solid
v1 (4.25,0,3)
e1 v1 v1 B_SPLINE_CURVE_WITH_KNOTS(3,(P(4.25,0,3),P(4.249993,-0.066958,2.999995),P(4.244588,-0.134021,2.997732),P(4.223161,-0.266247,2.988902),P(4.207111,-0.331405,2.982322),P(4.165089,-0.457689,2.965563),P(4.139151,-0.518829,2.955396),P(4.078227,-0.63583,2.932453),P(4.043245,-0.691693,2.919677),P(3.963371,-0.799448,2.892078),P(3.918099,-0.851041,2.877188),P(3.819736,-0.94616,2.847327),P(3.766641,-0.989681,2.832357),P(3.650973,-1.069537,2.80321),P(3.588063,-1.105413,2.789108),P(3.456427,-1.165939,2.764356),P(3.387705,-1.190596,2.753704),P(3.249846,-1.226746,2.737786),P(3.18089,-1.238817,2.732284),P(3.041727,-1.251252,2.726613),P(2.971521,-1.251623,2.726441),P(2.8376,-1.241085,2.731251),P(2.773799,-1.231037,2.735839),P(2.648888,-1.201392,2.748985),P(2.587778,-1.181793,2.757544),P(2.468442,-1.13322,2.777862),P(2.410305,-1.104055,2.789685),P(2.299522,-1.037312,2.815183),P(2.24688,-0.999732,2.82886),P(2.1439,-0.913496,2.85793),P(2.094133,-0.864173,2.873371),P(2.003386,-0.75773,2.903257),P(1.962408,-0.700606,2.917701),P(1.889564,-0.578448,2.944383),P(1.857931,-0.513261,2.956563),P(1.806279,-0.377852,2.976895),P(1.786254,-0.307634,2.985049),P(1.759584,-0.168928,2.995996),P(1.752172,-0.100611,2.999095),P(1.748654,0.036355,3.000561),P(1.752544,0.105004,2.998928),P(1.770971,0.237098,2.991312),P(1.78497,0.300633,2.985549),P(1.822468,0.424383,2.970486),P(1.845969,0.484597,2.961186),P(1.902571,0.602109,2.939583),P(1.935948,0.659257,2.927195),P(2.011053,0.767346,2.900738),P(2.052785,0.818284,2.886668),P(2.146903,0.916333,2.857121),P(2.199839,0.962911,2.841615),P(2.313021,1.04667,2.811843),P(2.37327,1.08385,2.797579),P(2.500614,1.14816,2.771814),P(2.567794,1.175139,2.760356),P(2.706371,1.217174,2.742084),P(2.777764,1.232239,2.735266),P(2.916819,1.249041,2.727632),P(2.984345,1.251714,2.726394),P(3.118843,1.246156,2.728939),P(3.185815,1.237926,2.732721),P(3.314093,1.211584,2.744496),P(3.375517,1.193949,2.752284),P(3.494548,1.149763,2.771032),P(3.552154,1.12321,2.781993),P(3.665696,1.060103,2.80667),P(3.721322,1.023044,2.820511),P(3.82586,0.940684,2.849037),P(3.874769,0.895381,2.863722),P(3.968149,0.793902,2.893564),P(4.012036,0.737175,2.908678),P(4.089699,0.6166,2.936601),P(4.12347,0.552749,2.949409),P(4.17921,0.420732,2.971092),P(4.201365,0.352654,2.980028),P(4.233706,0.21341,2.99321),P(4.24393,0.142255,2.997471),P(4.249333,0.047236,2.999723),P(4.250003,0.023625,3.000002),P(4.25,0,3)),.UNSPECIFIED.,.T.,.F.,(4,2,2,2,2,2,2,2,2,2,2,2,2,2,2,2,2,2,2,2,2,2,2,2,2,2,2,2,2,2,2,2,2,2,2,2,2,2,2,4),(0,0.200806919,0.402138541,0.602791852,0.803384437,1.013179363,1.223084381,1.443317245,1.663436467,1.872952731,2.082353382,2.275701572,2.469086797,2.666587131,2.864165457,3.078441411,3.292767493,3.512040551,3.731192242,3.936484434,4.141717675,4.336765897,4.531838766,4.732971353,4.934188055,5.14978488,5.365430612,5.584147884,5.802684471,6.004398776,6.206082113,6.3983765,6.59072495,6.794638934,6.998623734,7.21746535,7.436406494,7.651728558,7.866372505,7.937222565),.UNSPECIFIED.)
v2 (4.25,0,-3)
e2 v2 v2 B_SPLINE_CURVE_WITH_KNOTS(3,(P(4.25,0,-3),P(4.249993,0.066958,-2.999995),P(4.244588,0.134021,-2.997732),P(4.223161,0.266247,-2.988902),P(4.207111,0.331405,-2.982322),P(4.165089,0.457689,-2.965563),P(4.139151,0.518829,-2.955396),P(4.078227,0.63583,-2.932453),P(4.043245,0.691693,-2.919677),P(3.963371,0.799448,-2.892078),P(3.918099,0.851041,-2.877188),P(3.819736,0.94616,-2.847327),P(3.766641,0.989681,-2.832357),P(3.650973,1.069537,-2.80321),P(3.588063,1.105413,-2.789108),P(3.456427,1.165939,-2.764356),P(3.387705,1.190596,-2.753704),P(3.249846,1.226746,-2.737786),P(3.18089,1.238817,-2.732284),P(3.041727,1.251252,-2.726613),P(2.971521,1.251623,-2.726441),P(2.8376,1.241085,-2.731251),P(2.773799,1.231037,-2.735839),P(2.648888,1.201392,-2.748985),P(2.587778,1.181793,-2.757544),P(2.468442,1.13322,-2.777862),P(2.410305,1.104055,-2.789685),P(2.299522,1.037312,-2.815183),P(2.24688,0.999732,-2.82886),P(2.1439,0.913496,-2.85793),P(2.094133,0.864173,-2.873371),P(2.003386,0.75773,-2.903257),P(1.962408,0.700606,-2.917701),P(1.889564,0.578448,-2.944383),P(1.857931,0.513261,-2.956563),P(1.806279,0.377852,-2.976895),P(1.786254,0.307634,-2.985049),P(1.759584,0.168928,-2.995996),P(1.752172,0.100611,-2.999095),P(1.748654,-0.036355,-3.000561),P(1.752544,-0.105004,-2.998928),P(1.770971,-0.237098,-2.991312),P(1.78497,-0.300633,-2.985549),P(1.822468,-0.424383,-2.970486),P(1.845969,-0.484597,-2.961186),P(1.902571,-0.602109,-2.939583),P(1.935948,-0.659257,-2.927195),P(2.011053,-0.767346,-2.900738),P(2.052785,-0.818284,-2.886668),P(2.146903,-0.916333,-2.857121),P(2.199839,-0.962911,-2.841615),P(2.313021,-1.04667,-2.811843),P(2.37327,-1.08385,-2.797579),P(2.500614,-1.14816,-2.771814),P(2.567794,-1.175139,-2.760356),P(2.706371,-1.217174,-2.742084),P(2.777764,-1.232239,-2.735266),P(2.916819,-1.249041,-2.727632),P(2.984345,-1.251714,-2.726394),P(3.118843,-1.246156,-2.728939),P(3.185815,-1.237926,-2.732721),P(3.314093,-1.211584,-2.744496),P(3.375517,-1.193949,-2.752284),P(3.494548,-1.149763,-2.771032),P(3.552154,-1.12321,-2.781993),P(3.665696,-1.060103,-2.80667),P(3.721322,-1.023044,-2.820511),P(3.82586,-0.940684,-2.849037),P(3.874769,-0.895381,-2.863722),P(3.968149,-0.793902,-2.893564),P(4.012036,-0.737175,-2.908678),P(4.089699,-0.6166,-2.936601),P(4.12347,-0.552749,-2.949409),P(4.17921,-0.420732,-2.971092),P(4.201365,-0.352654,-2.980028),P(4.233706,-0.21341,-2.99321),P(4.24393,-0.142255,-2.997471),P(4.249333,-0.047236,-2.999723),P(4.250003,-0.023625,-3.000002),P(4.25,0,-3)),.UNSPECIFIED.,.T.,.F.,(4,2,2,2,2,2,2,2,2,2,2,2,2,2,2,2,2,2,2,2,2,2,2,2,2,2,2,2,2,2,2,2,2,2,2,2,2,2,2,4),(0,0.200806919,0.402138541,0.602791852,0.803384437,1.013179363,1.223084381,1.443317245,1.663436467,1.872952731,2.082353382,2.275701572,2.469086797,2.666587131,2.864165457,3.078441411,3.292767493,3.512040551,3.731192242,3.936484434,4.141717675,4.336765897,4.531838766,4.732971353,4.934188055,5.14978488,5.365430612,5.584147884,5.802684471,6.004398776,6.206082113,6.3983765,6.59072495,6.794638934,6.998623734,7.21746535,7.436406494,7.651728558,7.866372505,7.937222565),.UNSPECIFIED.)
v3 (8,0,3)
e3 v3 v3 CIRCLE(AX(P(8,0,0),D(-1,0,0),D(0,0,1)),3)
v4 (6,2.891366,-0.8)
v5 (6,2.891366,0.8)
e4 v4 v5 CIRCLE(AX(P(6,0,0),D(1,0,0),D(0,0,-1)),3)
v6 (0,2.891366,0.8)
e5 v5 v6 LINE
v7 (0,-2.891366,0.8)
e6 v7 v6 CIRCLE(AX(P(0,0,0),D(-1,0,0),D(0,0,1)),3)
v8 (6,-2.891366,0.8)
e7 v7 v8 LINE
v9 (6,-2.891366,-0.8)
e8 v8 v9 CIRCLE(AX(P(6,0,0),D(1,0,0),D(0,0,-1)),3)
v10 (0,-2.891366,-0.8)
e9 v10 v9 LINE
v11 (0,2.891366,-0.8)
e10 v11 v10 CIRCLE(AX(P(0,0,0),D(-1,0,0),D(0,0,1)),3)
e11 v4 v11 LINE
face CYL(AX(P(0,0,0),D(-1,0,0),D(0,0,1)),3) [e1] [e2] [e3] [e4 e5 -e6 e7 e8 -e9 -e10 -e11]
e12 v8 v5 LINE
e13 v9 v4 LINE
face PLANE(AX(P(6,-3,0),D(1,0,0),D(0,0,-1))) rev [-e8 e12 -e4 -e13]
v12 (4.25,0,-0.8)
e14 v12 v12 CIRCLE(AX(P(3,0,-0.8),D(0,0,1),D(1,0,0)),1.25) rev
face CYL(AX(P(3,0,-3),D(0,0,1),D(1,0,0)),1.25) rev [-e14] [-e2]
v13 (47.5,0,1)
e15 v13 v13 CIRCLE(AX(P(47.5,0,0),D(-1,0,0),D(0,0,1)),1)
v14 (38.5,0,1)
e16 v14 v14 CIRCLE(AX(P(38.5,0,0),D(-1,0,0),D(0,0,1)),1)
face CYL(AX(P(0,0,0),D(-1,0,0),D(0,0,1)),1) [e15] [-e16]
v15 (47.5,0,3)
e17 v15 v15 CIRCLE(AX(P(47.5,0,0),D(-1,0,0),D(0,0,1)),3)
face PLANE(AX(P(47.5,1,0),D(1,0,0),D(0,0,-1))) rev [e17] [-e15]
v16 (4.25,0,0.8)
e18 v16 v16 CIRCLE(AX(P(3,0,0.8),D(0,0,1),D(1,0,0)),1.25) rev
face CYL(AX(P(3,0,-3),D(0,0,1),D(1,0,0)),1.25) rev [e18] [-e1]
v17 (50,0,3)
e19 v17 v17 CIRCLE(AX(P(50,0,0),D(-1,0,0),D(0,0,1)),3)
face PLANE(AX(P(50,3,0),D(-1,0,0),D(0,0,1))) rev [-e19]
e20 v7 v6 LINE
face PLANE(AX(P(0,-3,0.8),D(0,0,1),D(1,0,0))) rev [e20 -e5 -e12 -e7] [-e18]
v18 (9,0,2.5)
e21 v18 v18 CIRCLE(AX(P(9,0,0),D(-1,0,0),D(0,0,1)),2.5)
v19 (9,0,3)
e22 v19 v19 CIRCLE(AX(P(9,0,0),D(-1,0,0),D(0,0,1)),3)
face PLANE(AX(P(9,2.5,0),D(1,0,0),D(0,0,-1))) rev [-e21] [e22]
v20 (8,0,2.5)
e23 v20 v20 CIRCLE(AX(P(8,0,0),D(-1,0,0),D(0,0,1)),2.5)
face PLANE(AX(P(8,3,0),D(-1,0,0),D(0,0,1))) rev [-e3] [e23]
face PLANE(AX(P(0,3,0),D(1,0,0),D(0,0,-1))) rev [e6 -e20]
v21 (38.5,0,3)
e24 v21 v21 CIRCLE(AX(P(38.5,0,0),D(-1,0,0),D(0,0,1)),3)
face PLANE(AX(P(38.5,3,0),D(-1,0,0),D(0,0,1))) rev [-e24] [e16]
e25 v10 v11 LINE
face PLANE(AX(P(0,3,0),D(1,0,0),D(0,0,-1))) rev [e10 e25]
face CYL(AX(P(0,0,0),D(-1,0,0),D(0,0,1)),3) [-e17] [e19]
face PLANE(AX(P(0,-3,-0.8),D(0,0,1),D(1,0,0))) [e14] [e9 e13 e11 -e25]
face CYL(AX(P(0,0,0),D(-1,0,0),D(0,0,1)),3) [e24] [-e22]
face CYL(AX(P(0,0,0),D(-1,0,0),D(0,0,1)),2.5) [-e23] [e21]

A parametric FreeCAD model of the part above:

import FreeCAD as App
import Part
import Sketcher

V = App.Vector
Q = App.Units.Quantity

doc = App.newDocument("Part")
body = doc.addObject("PartDesign::Body", "Body")

# Sketch on XY plane
sketch1 = body.newObject("Sketcher::SketchObject", "Sketch")
sketch1.AttachmentSupport = (doc.getObject("XY_Plane"), [""])
sketch1.MapMode = "FlatFace"
sketch1.addGeometry(Part.LineSegment(V(38.5, 1, 0), V(38.5, 3, 0)), False)
sketch1.addGeometry(Part.LineSegment(V(38.5, 3, 0), V(9, 3, 0)), False)
sketch1.addGeometry(Part.LineSegment(V(9, 3, 0), V(9, 2.5, 0)), False)
sketch1.addGeometry(Part.LineSegment(V(9, 2.5, 0), V(8, 2.5, 0)), False)
sketch1.addGeometry(Part.LineSegment(V(8, 2.5, 0), V(8, 3, 0)), False)
sketch1.addGeometry(Part.LineSegment(V(8, 3, 0), V(0, 3, 0)), False)
sketch1.addGeometry(Part.LineSegment(V(0, 3, 0), V(0, 0, 0)), False)
sketch1.addGeometry(Part.LineSegment(V(0, 0, 0), V(50, 0, 0)), False)
sketch1.addGeometry(Part.LineSegment(V(50, 0, 0), V(50, 3, 0)), False)
sketch1.addGeometry(Part.LineSegment(V(50, 3, 0), V(47.5, 3, 0)), False)
sketch1.addGeometry(Part.LineSegment(V(47.5, 3, 0), V(47.5, 1, 0)), False)
sketch1.addGeometry(Part.LineSegment(V(47.5, 1, 0), V(38.5, 1, 0)), False)
sketch1.addConstraint(Sketcher.Constraint("Coincident", 0, 2, 1, 1))
sketch1.addConstraint(Sketcher.Constraint("Coincident", 1, 2, 2, 1))
sketch1.addConstraint(Sketcher.Constraint("Coincident", 2, 2, 3, 1))
sketch1.addConstraint(Sketcher.Constraint("Coincident", 3, 2, 4, 1))
sketch1.addConstraint(Sketcher.Constraint("Coincident", 4, 2, 5, 1))
sketch1.addConstraint(Sketcher.Constraint("Coincident", 5, 2, 6, 1))
sketch1.addConstraint(Sketcher.Constraint("Coincident", 6, 2, 7, 1))
sketch1.addConstraint(Sketcher.Constraint("Coincident", 7, 2, 8, 1))
sketch1.addConstraint(Sketcher.Constraint("Coincident", 8, 2, 9, 1))
sketch1.addConstraint(Sketcher.Constraint("Coincident", 9, 2, 10, 1))
sketch1.addConstraint(Sketcher.Constraint("Coincident", 10, 2, 11, 1))
sketch1.addConstraint(Sketcher.Constraint("Coincident", 11, 2, 0, 1))
sketch1.addConstraint(Sketcher.Constraint("Vertical", 0))
sketch1.addConstraint(Sketcher.Constraint("Horizontal", 1))
sketch1.addConstraint(Sketcher.Constraint("Vertical", 2))
sketch1.addConstraint(Sketcher.Constraint("Horizontal", 3))
sketch1.addConstraint(Sketcher.Constraint("Vertical", 4))
sketch1.addConstraint(Sketcher.Constraint("Horizontal", 5))
sketch1.addConstraint(Sketcher.Constraint("Vertical", 6))
sketch1.addConstraint(Sketcher.Constraint("Horizontal", 7))
sketch1.addConstraint(Sketcher.Constraint("Vertical", 8))
sketch1.addConstraint(Sketcher.Constraint("Horizontal", 9))
sketch1.addConstraint(Sketcher.Constraint("Vertical", 10))
sketch1.addConstraint(Sketcher.Constraint("Horizontal", 11))
sketch1.addConstraint(Sketcher.Constraint("Coincident", 6, 2, -1, 1))
sketch1.addConstraint(Sketcher.Constraint("Horizontal", 1, 2, 4, 2))
sketch1.addConstraint(Sketcher.Constraint("Horizontal", 5, 2, 8, 2))
sketch1.addConstraint(Sketcher.Constraint("DistanceX", 3, 2, 3, 1, Q("1 mm")))
sketch1.addConstraint(Sketcher.Constraint("DistanceX", 5, 2, 5, 1, Q("8 mm")))
sketch1.addConstraint(Sketcher.Constraint("DistanceX", 7, 1, 7, 2, Q("50 mm")))
sketch1.addConstraint(Sketcher.Constraint("DistanceX", 11, 2, 11, 1, Q("9 mm")))
sketch1.addConstraint(Sketcher.Constraint("DistanceY", 0, 1, 0, 2, Q("2 mm")))
sketch1.addConstraint(Sketcher.Constraint("DistanceY", 6, 2, 6, 1, Q("3 mm")))
sketch1.addConstraint(Sketcher.Constraint("DistanceX", 1, 2, 1, 1, Q("29.5 mm")))
sketch1.addConstraint(Sketcher.Constraint("DistanceY", 2, 2, 2, 1, Q("0.5 mm")))
revolution = body.newObject("PartDesign::Revolution", "Revolution")
revolution.Profile = sketch1
revolution.ReferenceAxis = (sketch1, ["H_Axis"])
revolution.Angle = 360

# Sketch on XY plane
sketch2 = body.newObject("Sketcher::SketchObject", "Sketch001")
sketch2.AttachmentSupport = (doc.getObject("XY_Plane"), [""])
sketch2.MapMode = "FlatFace"
sketch2.addGeometry(Part.Circle(V(3, 0, 0), V(0, 0, 1), 1.2), False)
sketch2.addConstraint(Sketcher.Constraint("PointOnObject", 0, 3, -1))
sketch2.addConstraint(Sketcher.Constraint("Diameter", 0, Q("2.5 mm")))
sketch2.addConstraint(Sketcher.Constraint("DistanceX", -1, 1, 0, 3, Q("3 mm")))
pocket1 = body.newObject("PartDesign::Pocket", "Pocket")
pocket1.Profile = sketch2
pocket1.Type = "ThroughAll"
pocket1.Midplane = True

# Sketch on XZ plane
sketch3 = body.newObject("Sketcher::SketchObject", "Sketch002")
sketch3.AttachmentSupport = (doc.getObject("XZ_Plane"), [""])
sketch3.MapMode = "FlatFace"
sketch3.addGeometry(Part.LineSegment(V(0, -0.8, 0), V(0, 0.8, 0)), False)
sketch3.addGeometry(Part.LineSegment(V(0, 0.8, 0), V(6, 0.8, 0)), False)
sketch3.addGeometry(Part.LineSegment(V(6, 0.8, 0), V(6, -0.8, 0)), False)
sketch3.addGeometry(Part.LineSegment(V(6, -0.8, 0), V(0, -0.8, 0)), False)
sketch3.addConstraint(Sketcher.Constraint("Coincident", 0, 2, 1, 1))
sketch3.addConstraint(Sketcher.Constraint("Coincident", 1, 2, 2, 1))
sketch3.addConstraint(Sketcher.Constraint("Coincident", 2, 2, 3, 1))
sketch3.addConstraint(Sketcher.Constraint("Coincident", 3, 2, 0, 1))
sketch3.addConstraint(Sketcher.Constraint("Vertical", 0))
sketch3.addConstraint(Sketcher.Constraint("Horizontal", 1))
sketch3.addConstraint(Sketcher.Constraint("Vertical", 2))
sketch3.addConstraint(Sketcher.Constraint("Horizontal", 3))
sketch3.addConstraint(Sketcher.Constraint("Symmetric", 0, 2, 3, 2, -1, 1))
sketch3.addConstraint(Sketcher.Constraint("DistanceX", 1, 1, 1, 2, Q("6 mm")))
sketch3.addConstraint(Sketcher.Constraint("DistanceY", 0, 1, 0, 2, Q("1.6 mm")))
pocket2 = body.newObject("PartDesign::Pocket", "Pocket001")
pocket2.Profile = sketch3
pocket2.Type = "ThroughAll"
pocket2.Midplane = True

doc.recompute()
